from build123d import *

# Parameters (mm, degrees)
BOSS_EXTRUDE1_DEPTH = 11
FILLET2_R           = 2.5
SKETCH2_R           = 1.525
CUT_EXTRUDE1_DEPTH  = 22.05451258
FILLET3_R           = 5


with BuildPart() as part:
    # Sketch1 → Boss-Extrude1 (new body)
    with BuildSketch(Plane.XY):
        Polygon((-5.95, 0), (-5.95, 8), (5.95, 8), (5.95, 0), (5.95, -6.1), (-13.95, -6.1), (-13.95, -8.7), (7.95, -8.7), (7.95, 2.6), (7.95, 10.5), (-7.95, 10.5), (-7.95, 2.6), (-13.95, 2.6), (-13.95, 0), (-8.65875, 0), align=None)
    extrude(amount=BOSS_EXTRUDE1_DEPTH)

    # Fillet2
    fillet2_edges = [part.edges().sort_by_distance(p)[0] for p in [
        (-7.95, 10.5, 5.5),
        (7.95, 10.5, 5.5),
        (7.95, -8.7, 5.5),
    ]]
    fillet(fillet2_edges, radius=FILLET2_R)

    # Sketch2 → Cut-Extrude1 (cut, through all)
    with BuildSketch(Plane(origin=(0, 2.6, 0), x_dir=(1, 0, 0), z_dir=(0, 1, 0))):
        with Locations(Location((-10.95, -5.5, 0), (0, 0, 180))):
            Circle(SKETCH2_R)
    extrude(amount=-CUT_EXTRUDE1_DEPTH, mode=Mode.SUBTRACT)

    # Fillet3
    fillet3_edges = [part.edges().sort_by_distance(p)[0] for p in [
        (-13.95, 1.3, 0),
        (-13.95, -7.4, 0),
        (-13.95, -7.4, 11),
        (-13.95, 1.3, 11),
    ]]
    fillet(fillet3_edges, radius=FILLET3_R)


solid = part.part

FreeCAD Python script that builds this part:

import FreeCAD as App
import Part
import Sketcher
from FreeCAD import Vector
Q = App.Units.Quantity


def edges_at(feature, points):
    """Names of the edges that pass closest to the given points."""
    edges = feature.Shape.Edges
    near = lambda p: min(range(len(edges)), key=lambda i: edges[i].distToShape(Part.Vertex(*p))[0])
    return sorted({f"Edge{near(p) + 1}" for p in points})

doc = App.newDocument("Part")
body = doc.addObject("PartDesign::Body", "Body")

sketch1 = body.newObject("Sketcher::SketchObject", "Sketch")
sketch1.AttachmentSupport = (doc.getObject("XY_Plane"), [""])
sketch1.MapMode = "FlatFace"
sketch1.addGeometry([
    Part.LineSegment(Vector(-6, 0, 0), Vector(-6, 8, 0)),
    Part.LineSegment(Vector(-6, 8, 0), Vector(6, 8, 0)),
    Part.LineSegment(Vector(6, 8, 0), Vector(6, -6.1, 0)),
    Part.LineSegment(Vector(6, -6.1, 0), Vector(-13.9, -6.1, 0)),
    Part.LineSegment(Vector(-13.9, -6.1, 0), Vector(-13.9, -8.7, 0)),
    Part.LineSegment(Vector(-13.9, -8.7, 0), Vector(8, -8.7, 0)),
    Part.LineSegment(Vector(8, -8.7, 0), Vector(8, 10.5, 0)),
    Part.LineSegment(Vector(8, 10.5, 0), Vector(-8, 10.5, 0)),
    Part.LineSegment(Vector(-8, 10.5, 0), Vector(-8, 2.6, 0)),
    Part.LineSegment(Vector(-8, 2.6, 0), Vector(-13.9, 2.6, 0)),
    Part.LineSegment(Vector(-13.9, 2.6, 0), Vector(-13.9, 0, 0)),
    Part.LineSegment(Vector(-13.9, 0, 0), Vector(-6, 0, 0)),
], False)
sketch1.addConstraint([
    Sketcher.Constraint("Coincident", 0, 2, 1, 1),
    Sketcher.Constraint("Coincident", 1, 2, 2, 1),
    Sketcher.Constraint("Coincident", 2, 2, 3, 1),
    Sketcher.Constraint("Coincident", 3, 2, 4, 1),
    Sketcher.Constraint("Coincident", 4, 2, 5, 1),
    Sketcher.Constraint("Coincident", 5, 2, 6, 1),
    Sketcher.Constraint("Coincident", 6, 2, 7, 1),
    Sketcher.Constraint("Coincident", 7, 2, 8, 1),
    Sketcher.Constraint("Coincident", 8, 2, 9, 1),
    Sketcher.Constraint("Coincident", 9, 2, 10, 1),
    Sketcher.Constraint("Coincident", 10, 2, 11, 1),
    Sketcher.Constraint("Coincident", 11, 2, 0, 1),
    Sketcher.Constraint("Vertical", 0),
    Sketcher.Constraint("Horizontal", 1),
    Sketcher.Constraint("Vertical", 2),
    Sketcher.Constraint("Horizontal", 3),
    Sketcher.Constraint("Vertical", 4),
    Sketcher.Constraint("Horizontal", 5),
    Sketcher.Constraint("Vertical", 6),
    Sketcher.Constraint("Horizontal", 7),
    Sketcher.Constraint("Vertical", 8),
    Sketcher.Constraint("Horizontal", 9),
    Sketcher.Constraint("Vertical", 10),
    Sketcher.Constraint("Horizontal", 11),
    Sketcher.Constraint("PointOnObject", 10, 2, -1),
    Sketcher.Constraint("Vertical", 4, 2, 9, 2),
    Sketcher.Constraint("Equal", 11, 0),
    Sketcher.Constraint("Equal", 4, 10),
    Sketcher.Constraint("DistanceX", 9, 2, 9, 1, Q("6 mm")),
    Sketcher.Constraint("DistanceX", 11, 1, 11, 2, Q("8 mm")),
    Sketcher.Constraint("DistanceX", 1, 1, 1, 2, Q("11.9 mm")),
    Sketcher.Constraint("DistanceX", 5, 1, 5, 2, Q("21.9 mm")),
    Sketcher.Constraint("DistanceY", 2, 2, 2, 1, Q("14.1 mm")),
    Sketcher.Constraint("DistanceY", 4, 2, 4, 1, Q("2.6 mm")),
    Sketcher.Constraint("DistanceY", 6, 1, 6, 2, Q("19.2 mm")),
    Sketcher.Constraint("DistanceX", 0, 2, -1, 1, Q("5.95 mm")),
])
pad1 = body.newObject("PartDesign::Pad", "Pad")
pad1.Profile = sketch1
pad1.Length = 11
doc.recompute()

fillet = body.newObject("PartDesign::Fillet", "Fillet")
fillet.Base = (pad1, edges_at(pad1, [(-7.95, 10.5, 5.5), (7.95, 10.5, 5.5), (7.95, -8.7, 5.5)]))
fillet.Radius = 2.5

sketch2 = body.newObject("Sketcher::SketchObject", "Sketch001")
sketch2.AttachmentSupport = (doc.getObject("XZ_Plane"), [""])
sketch2.MapMode = "FlatFace"
sketch2.AttachmentOffset = App.Placement(Vector(0, 0, -2.6), App.Rotation())
sketch2.addGeometry(Part.Circle(Vector(-10.9, 5.5, 0), Vector(0, 0, 1), 1.5), False)
sketch2.addConstraint([
    Sketcher.Constraint("Diameter", 0, Q("3.05 mm")),
    Sketcher.Constraint("DistanceY", -1, 1, 0, 3, Q("5.5 mm")),
    Sketcher.Constraint("DistanceX", 0, 3, -1, 1, Q("10.95 mm")),
])
pocket1 = body.newObject("PartDesign::Pocket", "Pocket")
pocket1.Profile = sketch2
pocket1.Type = "ThroughAll"
pocket1.Reversed = True
doc.recompute()

fillet2 = body.newObject("PartDesign::Fillet", "Fillet001")
fillet2.Base = (pocket1, edges_at(pocket1, [
    (-13.95, 1.3, 0),
    (-13.95, -7.4, 0),
    (-13.95, -7.4, 11),
    (-13.95, 1.3, 11),
]))
fillet2.Radius = 5

doc.recompute()
